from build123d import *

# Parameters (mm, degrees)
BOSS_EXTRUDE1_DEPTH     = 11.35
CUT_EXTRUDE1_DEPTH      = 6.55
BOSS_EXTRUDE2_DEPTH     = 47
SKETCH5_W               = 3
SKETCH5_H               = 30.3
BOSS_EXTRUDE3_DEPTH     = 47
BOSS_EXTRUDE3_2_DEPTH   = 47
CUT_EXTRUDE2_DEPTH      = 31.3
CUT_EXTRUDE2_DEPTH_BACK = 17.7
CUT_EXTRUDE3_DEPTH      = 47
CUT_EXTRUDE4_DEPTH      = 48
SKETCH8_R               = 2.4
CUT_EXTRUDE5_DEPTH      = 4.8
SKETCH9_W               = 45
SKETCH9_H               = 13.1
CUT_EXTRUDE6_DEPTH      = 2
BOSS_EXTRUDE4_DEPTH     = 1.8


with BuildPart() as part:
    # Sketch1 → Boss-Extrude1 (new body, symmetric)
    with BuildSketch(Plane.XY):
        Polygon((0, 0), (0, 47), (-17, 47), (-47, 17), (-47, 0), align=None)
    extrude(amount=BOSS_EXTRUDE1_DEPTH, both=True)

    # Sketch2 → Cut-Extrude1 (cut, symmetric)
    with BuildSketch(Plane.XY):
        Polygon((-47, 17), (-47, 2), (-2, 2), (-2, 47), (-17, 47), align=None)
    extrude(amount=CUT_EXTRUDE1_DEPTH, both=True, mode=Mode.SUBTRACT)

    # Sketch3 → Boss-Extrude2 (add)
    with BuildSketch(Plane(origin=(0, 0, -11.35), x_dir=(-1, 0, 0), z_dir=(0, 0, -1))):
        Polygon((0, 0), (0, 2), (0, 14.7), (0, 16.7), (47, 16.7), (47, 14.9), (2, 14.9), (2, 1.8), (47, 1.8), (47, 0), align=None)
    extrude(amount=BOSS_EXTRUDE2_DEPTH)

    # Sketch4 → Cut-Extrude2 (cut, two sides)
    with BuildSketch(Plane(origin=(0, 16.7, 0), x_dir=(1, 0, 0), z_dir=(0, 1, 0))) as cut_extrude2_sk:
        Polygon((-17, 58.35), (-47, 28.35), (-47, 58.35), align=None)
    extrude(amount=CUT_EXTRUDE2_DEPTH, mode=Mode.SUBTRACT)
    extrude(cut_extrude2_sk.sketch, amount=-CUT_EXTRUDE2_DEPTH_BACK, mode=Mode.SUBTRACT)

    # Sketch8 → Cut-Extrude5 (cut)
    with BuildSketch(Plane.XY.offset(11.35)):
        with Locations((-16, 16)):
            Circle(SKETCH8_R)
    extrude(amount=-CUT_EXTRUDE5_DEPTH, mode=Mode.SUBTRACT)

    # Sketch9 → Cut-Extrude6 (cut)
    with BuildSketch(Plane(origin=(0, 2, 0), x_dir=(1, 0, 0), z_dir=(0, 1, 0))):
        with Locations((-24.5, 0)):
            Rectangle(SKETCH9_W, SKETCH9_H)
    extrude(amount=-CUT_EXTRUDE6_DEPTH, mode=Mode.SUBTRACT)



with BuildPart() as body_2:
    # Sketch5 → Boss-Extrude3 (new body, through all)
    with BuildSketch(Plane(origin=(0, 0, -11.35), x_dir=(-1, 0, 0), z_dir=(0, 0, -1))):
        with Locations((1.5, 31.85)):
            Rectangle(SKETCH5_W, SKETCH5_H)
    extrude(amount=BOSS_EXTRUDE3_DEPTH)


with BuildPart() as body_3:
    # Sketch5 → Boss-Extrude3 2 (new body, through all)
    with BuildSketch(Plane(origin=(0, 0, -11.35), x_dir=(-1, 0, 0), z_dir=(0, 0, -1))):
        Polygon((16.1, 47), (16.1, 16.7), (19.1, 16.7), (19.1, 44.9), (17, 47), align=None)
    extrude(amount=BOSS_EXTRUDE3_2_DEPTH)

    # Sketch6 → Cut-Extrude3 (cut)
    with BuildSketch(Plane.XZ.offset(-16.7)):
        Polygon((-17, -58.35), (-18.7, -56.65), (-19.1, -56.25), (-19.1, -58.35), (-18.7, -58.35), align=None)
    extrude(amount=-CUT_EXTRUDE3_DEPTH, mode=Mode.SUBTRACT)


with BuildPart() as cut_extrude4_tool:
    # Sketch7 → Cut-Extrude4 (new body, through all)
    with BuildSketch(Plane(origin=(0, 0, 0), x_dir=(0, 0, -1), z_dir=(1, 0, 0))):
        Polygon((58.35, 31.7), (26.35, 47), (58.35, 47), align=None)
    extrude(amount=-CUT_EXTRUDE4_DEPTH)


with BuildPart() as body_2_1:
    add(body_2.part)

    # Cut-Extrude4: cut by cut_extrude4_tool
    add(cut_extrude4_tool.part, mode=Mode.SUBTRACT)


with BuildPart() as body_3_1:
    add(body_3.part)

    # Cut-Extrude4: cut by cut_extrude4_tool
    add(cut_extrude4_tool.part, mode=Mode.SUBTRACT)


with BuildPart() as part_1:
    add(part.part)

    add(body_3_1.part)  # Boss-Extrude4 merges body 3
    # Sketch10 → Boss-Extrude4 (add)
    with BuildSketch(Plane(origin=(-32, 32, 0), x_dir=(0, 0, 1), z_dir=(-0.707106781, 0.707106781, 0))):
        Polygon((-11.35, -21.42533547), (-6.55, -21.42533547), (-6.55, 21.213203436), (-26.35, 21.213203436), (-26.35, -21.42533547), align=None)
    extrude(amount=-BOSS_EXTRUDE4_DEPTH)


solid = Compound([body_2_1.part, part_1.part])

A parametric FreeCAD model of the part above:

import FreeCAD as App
import Part
import Sketcher
Q = App.Units.Quantity


def add_polygon(sketch, points):
    """Adds a closed chain of lines whose ends are joined by coincident constraints."""
    first, n = sketch.GeometryCount, len(points)
    for a, b in zip(points, points[1:] + points[:1]):
        sketch.addGeometry(Part.LineSegment(App.Vector(*a, 0), App.Vector(*b, 0)), False)
    for i in range(n):
        sketch.addConstraint(Sketcher.Constraint("Coincident", first + i, 2, first + (i + 1) % n, 1))

doc = App.newDocument("Part")
body = doc.addObject("PartDesign::Body", "Body")

sketch1 = doc.addObject("Sketcher::SketchObject", "Sketch")
body.addObject(sketch1)
sketch1.AttachmentSupport = (doc.XY_Plane, [""])
sketch1.MapMode = "FlatFace"
add_polygon(sketch1, [(0, 0), (0, 47), (-17, 47), (-47, 17), (-47, 0)])
sketch1.addConstraint([
    Sketcher.Constraint("Vertical", 0),
    Sketcher.Constraint("Horizontal", 1),
    Sketcher.Constraint("Vertical", 3),
    Sketcher.Constraint("Horizontal", 4),
    Sketcher.Constraint("Coincident", 4, 2, -1, 1),
    Sketcher.Constraint("Equal", 4, 0),
    Sketcher.Constraint("Equal", 1, 3),
    Sketcher.Constraint("DistanceX", 1, 2, 1, 1, Q("17 mm")),
    Sketcher.Constraint("DistanceX", 4, 1, 4, 2, Q("47 mm")),
])
pad1 = doc.addObject("PartDesign::Pad", "Pad")
body.addObject(pad1)
pad1.Profile = sketch1
pad1.Length = 22.7
pad1.Midplane = True

sketch2 = doc.addObject("Sketcher::SketchObject", "Sketch001")
body.addObject(sketch2)
sketch2.AttachmentSupport = (doc.XY_Plane, [""])
sketch2.MapMode = "FlatFace"
add_polygon(sketch2, [(-47, 17), (-47, 2), (-2, 2), (-2, 47), (-17, 47)])
sketch2.addConstraint([
    Sketcher.Constraint("Vertical", 0),
    Sketcher.Constraint("Horizontal", 1),
    Sketcher.Constraint("Vertical", 2),
    Sketcher.Constraint("Horizontal", 3),
    Sketcher.Constraint("Equal", 3, 0),
    Sketcher.Constraint("Equal", 1, 2),
    Sketcher.Constraint("DistanceX", 1, 1, 1, 2, Q("45 mm")),
    Sketcher.Constraint("DistanceX", 3, 2, 3, 1, Q("15 mm")),
    Sketcher.Constraint("DistanceX", 0, 2, -1, 1, Q("47 mm")),
    Sketcher.Constraint("DistanceY", -1, 1, 0, 2, Q("2 mm")),
])
pocket1 = doc.addObject("PartDesign::Pocket", "Pocket")
body.addObject(pocket1)
pocket1.Profile = sketch2
pocket1.Length = 13.1
pocket1.Midplane = True

sketch3 = doc.addObject("Sketcher::SketchObject", "Sketch002")
body.addObject(sketch3)
sketch3.AttachmentSupport = (doc.XY_Plane, [""])
sketch3.MapMode = "FlatFace"
sketch3.AttachmentOffset = App.Placement(App.Vector(0, 0, -11.35), App.Rotation())
add_polygon(sketch3, [(0, 16.7), (0, 0), (-47, 0), (-47, 1.8), (-2, 1.8), (-2, 14.9), (-47, 14.9), (-47, 16.7)])
sketch3.addConstraint([
    Sketcher.Constraint("Vertical", 0),
    Sketcher.Constraint("Horizontal", 1),
    Sketcher.Constraint("Vertical", 2),
    Sketcher.Constraint("Horizontal", 3),
    Sketcher.Constraint("Vertical", 4),
    Sketcher.Constraint("Horizontal", 5),
    Sketcher.Constraint("Vertical", 6),
    Sketcher.Constraint("Horizontal", 7),
    Sketcher.Constraint("Coincident", 0, 2, -1, 1),
    Sketcher.Constraint("Vertical", 2, 2, 5, 2),
    Sketcher.Constraint("Equal", 2, 6),
    Sketcher.Constraint("DistanceX", 1, 2, 1, 1, Q("47 mm")),
    Sketcher.Constraint("DistanceX", 3, 1, 3, 2, Q("45 mm")),
    Sketcher.Constraint("DistanceY", 0, 2, 0, 1, Q("16.7 mm")),
    Sketcher.Constraint("DistanceY", 2, 1, 2, 2, Q("1.8 mm")),
])
pad2 = doc.addObject("PartDesign::Pad", "Pad001")
body.addObject(pad2)
pad2.Profile = sketch3
pad2.Length = 47
pad2.Reversed = True

sketch4 = doc.addObject("Sketcher::SketchObject", "Sketch003")
body.addObject(sketch4)
sketch4.AttachmentSupport = (doc.XZ_Plane, [""])
sketch4.MapMode = "FlatFace"
sketch4.AttachmentOffset = App.Placement(App.Vector(0, 0, -16.7), App.Rotation())
add_polygon(sketch4, [(-47, -28.35), (-17, -58.35), (-47, -58.35)])
sketch4.addConstraint([
    Sketcher.Constraint("Horizontal", 1),
    Sketcher.Constraint("Vertical", 2),
    Sketcher.Constraint("Equal", 1, 2),
    Sketcher.Constraint("DistanceX", 1, 2, 1, 1, Q("30 mm")),
    Sketcher.Constraint("DistanceX", 0, 2, -1, 1, Q("17 mm")),
    Sketcher.Constraint("DistanceY", 0, 2, -1, 1, Q("58.35 mm")),
])
pocket2 = doc.addObject("PartDesign::Pocket", "Pocket001")
body.addObject(pocket2)
pocket2.Profile = sketch4
pocket2.Type = "ThroughAll"
pocket2.Midplane = True

sketch5 = doc.addObject("Sketcher::SketchObject", "Sketch004")
body.addObject(sketch5)
sketch5.AttachmentSupport = (doc.XY_Plane, [""])
sketch5.MapMode = "FlatFace"
sketch5.AttachmentOffset = App.Placement(App.Vector(0, 0, 11.35), App.Rotation())
sketch5.addGeometry(Part.Circle(App.Vector(-16, 16, 0), App.Vector(0, 0, 1), 2.4), False)
sketch5.addConstraint([
    Sketcher.Constraint("Diameter", 0, Q("4.8 mm")),
    Sketcher.Constraint("DistanceX", 0, 3, -1, 1, Q("16 mm")),
    Sketcher.Constraint("DistanceY", -1, 1, 0, 3, Q("16 mm")),
])
pocket3 = doc.addObject("PartDesign::Pocket", "Pocket002")
body.addObject(pocket3)
pocket3.Profile = sketch5
pocket3.Length = 4.8

sketch6 = doc.addObject("Sketcher::SketchObject", "Sketch005")
body.addObject(sketch6)
sketch6.AttachmentSupport = (doc.XZ_Plane, [""])
sketch6.MapMode = "FlatFace"
sketch6.AttachmentOffset = App.Placement(App.Vector(0, 0, -2), App.Rotation())
add_polygon(sketch6, [(-47, -6.55), (-47, 6.55), (-2, 6.55), (-2, -6.55)])
sketch6.addConstraint([
    Sketcher.Constraint("Vertical", 0),
    Sketcher.Constraint("Horizontal", 1),
    Sketcher.Constraint("Vertical", 2),
    Sketcher.Constraint("Horizontal", 3),
    Sketcher.Constraint("DistanceX", 1, 1, 1, 2, Q("45 mm")),
    Sketcher.Constraint("DistanceY", 0, 1, 0, 2, Q("13.1 mm")),
    Sketcher.Constraint("DistanceX", 0, 2, -1, 1, Q("47 mm")),
    Sketcher.Constraint("DistanceY", -1, 1, 0, 2, Q("6.55 mm")),
])
pocket4 = doc.addObject("PartDesign::Pocket", "Pocket003")
body.addObject(pocket4)
pocket4.Profile = sketch6
pocket4.Length = 2
pocket4.Reversed = True
body2 = doc.addObject("PartDesign::Body", "Body001")

sketch7 = doc.addObject("Sketcher::SketchObject", "Sketch006")
body2.addObject(sketch7)
sketch7.AttachmentSupport = (doc.getObject("XY_Plane001"), [""])
sketch7.MapMode = "FlatFace"
sketch7.AttachmentOffset = App.Placement(App.Vector(0, 0, -11.35), App.Rotation())
add_polygon(sketch7, [(0, 47), (0, 16.7), (-3, 16.7), (-3, 47)])
sketch7.addConstraint([
    Sketcher.Constraint("Vertical", 0),
    Sketcher.Constraint("Horizontal", 1),
    Sketcher.Constraint("Vertical", 2),
    Sketcher.Constraint("Horizontal", 3),
    Sketcher.Constraint("PointOnObject", 0, 2, -2),
    Sketcher.Constraint("DistanceX", 1, 2, 1, 1, Q("3 mm")),
    Sketcher.Constraint("DistanceY", 0, 2, 0, 1, Q("30.3 mm")),
    Sketcher.Constraint("DistanceY", -1, 1, 2, 2, Q("47 mm")),
])
pad3 = doc.addObject("PartDesign::Pad", "Pad002")
body2.addObject(pad3)
pad3.Profile = sketch7
pad3.Length = 47
pad3.Reversed = True
body3 = doc.addObject("PartDesign::Body", "Body002")

sketch8 = doc.addObject("Sketcher::SketchObject", "Sketch007")
body3.addObject(sketch8)
sketch8.AttachmentSupport = (doc.getObject("XY_Plane002"), [""])
sketch8.MapMode = "FlatFace"
sketch8.AttachmentOffset = App.Placement(App.Vector(0, 0, -11.35), App.Rotation())
add_polygon(sketch8, [(-16.1, 47), (-16.1, 16.7), (-19.1, 16.7), (-19.1, 44.9), (-17, 47)])
sketch8.addConstraint([
    Sketcher.Constraint("Vertical", 0),
    Sketcher.Constraint("Horizontal", 1),
    Sketcher.Constraint("Vertical", 2),
    Sketcher.Constraint("Horizontal", 4),
    Sketcher.Constraint("DistanceX", 1, 2, 1, 1, Q("3 mm")),
    Sketcher.Constraint("Angle", 3, Q("45 deg")),
    Sketcher.Constraint("DistanceX", 4, 1, 4, 2, Q("0.9 mm")),
    Sketcher.Constraint("DistanceY", 0, 2, 0, 1, Q("30.3 mm")),
    Sketcher.Constraint("DistanceX", 3, 2, -1, 1, Q("17 mm")),
    Sketcher.Constraint("DistanceY", -1, 1, 3, 2, Q("47 mm")),
])
pad4 = doc.addObject("PartDesign::Pad", "Pad003")
body3.addObject(pad4)
pad4.Profile = sketch8
pad4.Length = 47
pad4.Reversed = True

sketch9 = doc.addObject("Sketcher::SketchObject", "Sketch008")
body3.addObject(sketch9)
sketch9.AttachmentSupport = (doc.getObject("XZ_Plane002"), [""])
sketch9.MapMode = "FlatFace"
sketch9.AttachmentOffset = App.Placement(App.Vector(0, 0, -16.7), App.Rotation())
add_polygon(sketch9, [(-17, -58.35), (-19.1, -56.25), (-19.1, -58.35)])
sketch9.addConstraint([
    Sketcher.Constraint("Vertical", 1),
    Sketcher.Constraint("Horizontal", 2),
    Sketcher.Constraint("Equal", 2, 1),
    Sketcher.Constraint("DistanceX", 2, 1, 2, 2, Q("2.1 mm")),
    Sketcher.Constraint("DistanceX", 2, 2, -1, 1, Q("17 mm")),
    Sketcher.Constraint("DistanceY", 0, 2, -1, 1, Q("56.25 mm")),
])
pocket5 = doc.addObject("PartDesign::Pocket", "Pocket004")
body3.addObject(pocket5)
pocket5.Profile = sketch9
pocket5.Length = 47
body4 = doc.addObject("PartDesign::Body", "Body003")

sketch10 = doc.addObject("Sketcher::SketchObject", "Sketch009")
body4.addObject(sketch10)
sketch10.AttachmentSupport = (doc.getObject("YZ_Plane003"), [""])
sketch10.MapMode = "FlatFace"
add_polygon(sketch10, [(47, -26.35), (31.7, -58.35), (47, -58.35)])
sketch10.addConstraint([
    Sketcher.Constraint("Horizontal", 1),
    Sketcher.Constraint("Vertical", 2),
    Sketcher.Constraint("DistanceY", 2, 1, 2, 2, Q("32 mm")),
    Sketcher.Constraint("DistanceX", 1, 1, 1, 2, Q("15.3 mm")),
    Sketcher.Constraint("DistanceX", -1, 1, 1, 2, Q("47 mm")),
    Sketcher.Constraint("DistanceY", 0, 2, -1, 1, Q("58.35 mm")),
])
pad5 = doc.addObject("PartDesign::Pad", "Pad004")
body4.addObject(pad5)
pad5.Profile = sketch10
pad5.Length = 48
pad5.Reversed = True
doc.recompute()

body5 = doc.addObject("PartDesign::Body", "Body004")
body5.BaseFeature = body4
boolean = doc.addObject("PartDesign::Boolean", "Boolean")
body2.addObject(boolean)
boolean.Type = "Cut"
boolean.addObjects([body5])
doc.recompute()

boolean2 = doc.addObject("PartDesign::Boolean", "Boolean001")
body3.addObject(boolean2)
boolean2.Type = "Cut"
boolean2.addObjects([body4])
doc.recompute()

boolean3 = doc.addObject("PartDesign::Boolean", "Boolean002")
body.addObject(boolean3)
boolean3.Type = "Fuse"
boolean3.addObjects([body3])

sketch11 = doc.addObject("Sketcher::SketchObject", "Sketch010")
body.addObject(sketch11)
sketch11.Placement = App.Placement(App.Vector(-32, 32, 0), App.Rotation(App.Vector(0, 0, 1), App.Vector(0.707106781, 0.707106781, 0), App.Vector(-0.707106781, 0.707106781, 0), "ZXY"))
add_polygon(sketch11, [(-6.55, -21.425335), (-6.55, 21.213203), (-26.35, 21.213203), (-26.35, -21.425335)])
sketch11.addConstraint([
    Sketcher.Constraint("Vertical", 0),
    Sketcher.Constraint("Horizontal", 1),
    Sketcher.Constraint("Vertical", 2),
    Sketcher.Constraint("Horizontal", 3),
    Sketcher.Constraint("DistanceX", 1, 2, 1, 1, Q("19.8 mm")),
    Sketcher.Constraint("DistanceX", 0, 2, -1, 1, Q("6.55 mm")),
    Sketcher.Constraint("DistanceY", 0, 1, 0, 2, Q("42.638539 mm")),
    Sketcher.Constraint("DistanceY", -1, 1, 0, 2, Q("21.213203 mm")),
])
pad6 = doc.addObject("PartDesign::Pad", "Pad005")
body.addObject(pad6)
pad6.Profile = sketch11
pad6.Length = 1.8
pad6.Reversed = True

doc.recompute()
